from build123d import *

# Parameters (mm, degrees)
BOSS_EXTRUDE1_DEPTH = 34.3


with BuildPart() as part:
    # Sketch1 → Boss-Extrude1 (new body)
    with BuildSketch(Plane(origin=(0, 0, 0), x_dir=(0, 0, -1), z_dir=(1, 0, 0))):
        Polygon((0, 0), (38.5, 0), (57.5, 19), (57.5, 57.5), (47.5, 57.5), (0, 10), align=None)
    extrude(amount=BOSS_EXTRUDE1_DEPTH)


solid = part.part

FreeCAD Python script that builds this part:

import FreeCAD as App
import Part
import Sketcher

V = App.Vector
Q = App.Units.Quantity

doc = App.newDocument("Part")
body = doc.addObject("PartDesign::Body", "Body")

# Sketch on YZ plane
sketch1 = doc.addObject("Sketcher::SketchObject", "Sketch")
body.addObject(sketch1)
sketch1.AttachmentSupport = (doc.YZ_Plane, [""])
sketch1.MapMode = "FlatFace"
sketch1.addGeometry(Part.LineSegment(V(0, 0, 0), V(0, -38, 0)), False)
sketch1.addGeometry(Part.LineSegment(V(0, -38, 0), V(19, -58, 0)), False)
sketch1.addGeometry(Part.LineSegment(V(19, -58, 0), V(58, -58, 0)), False)
sketch1.addGeometry(Part.LineSegment(V(58, -58, 0), V(58, -48, 0)), False)
sketch1.addGeometry(Part.LineSegment(V(58, -48, 0), V(10, 0, 0)), False)
sketch1.addGeometry(Part.LineSegment(V(10, 0, 0), V(0, 0, 0)), False)
sketch1.addConstraint(Sketcher.Constraint("Coincident", 0, 2, 1, 1))
sketch1.addConstraint(Sketcher.Constraint("Coincident", 1, 2, 2, 1))
sketch1.addConstraint(Sketcher.Constraint("Coincident", 2, 2, 3, 1))
sketch1.addConstraint(Sketcher.Constraint("Coincident", 3, 2, 4, 1))
sketch1.addConstraint(Sketcher.Constraint("Coincident", 4, 2, 5, 1))
sketch1.addConstraint(Sketcher.Constraint("Coincident", 5, 2, 0, 1))
sketch1.addConstraint(Sketcher.Constraint("Vertical", 0))
sketch1.addConstraint(Sketcher.Constraint("Horizontal", 2))
sketch1.addConstraint(Sketcher.Constraint("Vertical", 3))
sketch1.addConstraint(Sketcher.Constraint("Horizontal", 5))
sketch1.addConstraint(Sketcher.Constraint("Coincident", 5, 2, -1, 1))
sketch1.addConstraint(Sketcher.Constraint("Parallel", 1, 4))
sketch1.addConstraint(Sketcher.Constraint("Equal", 2, 0))
sketch1.addConstraint(Sketcher.Constraint("Equal", 5, 3))
sketch1.addConstraint(Sketcher.Constraint("DistanceX", 5, 2, 5, 1, Q("10 mm")))
sketch1.addConstraint(Sketcher.Constraint("DistanceX", 2, 1, 2, 2, Q("38.5 mm")))
sketch1.addConstraint(Sketcher.Constraint("DistanceX", -1, 1, 1, 2, Q("19 mm")))
pad1 = doc.addObject("PartDesign::Pad", "Pad")
body.addObject(pad1)
pad1.Profile = sketch1
pad1.Length = 34.3

doc.recompute()
